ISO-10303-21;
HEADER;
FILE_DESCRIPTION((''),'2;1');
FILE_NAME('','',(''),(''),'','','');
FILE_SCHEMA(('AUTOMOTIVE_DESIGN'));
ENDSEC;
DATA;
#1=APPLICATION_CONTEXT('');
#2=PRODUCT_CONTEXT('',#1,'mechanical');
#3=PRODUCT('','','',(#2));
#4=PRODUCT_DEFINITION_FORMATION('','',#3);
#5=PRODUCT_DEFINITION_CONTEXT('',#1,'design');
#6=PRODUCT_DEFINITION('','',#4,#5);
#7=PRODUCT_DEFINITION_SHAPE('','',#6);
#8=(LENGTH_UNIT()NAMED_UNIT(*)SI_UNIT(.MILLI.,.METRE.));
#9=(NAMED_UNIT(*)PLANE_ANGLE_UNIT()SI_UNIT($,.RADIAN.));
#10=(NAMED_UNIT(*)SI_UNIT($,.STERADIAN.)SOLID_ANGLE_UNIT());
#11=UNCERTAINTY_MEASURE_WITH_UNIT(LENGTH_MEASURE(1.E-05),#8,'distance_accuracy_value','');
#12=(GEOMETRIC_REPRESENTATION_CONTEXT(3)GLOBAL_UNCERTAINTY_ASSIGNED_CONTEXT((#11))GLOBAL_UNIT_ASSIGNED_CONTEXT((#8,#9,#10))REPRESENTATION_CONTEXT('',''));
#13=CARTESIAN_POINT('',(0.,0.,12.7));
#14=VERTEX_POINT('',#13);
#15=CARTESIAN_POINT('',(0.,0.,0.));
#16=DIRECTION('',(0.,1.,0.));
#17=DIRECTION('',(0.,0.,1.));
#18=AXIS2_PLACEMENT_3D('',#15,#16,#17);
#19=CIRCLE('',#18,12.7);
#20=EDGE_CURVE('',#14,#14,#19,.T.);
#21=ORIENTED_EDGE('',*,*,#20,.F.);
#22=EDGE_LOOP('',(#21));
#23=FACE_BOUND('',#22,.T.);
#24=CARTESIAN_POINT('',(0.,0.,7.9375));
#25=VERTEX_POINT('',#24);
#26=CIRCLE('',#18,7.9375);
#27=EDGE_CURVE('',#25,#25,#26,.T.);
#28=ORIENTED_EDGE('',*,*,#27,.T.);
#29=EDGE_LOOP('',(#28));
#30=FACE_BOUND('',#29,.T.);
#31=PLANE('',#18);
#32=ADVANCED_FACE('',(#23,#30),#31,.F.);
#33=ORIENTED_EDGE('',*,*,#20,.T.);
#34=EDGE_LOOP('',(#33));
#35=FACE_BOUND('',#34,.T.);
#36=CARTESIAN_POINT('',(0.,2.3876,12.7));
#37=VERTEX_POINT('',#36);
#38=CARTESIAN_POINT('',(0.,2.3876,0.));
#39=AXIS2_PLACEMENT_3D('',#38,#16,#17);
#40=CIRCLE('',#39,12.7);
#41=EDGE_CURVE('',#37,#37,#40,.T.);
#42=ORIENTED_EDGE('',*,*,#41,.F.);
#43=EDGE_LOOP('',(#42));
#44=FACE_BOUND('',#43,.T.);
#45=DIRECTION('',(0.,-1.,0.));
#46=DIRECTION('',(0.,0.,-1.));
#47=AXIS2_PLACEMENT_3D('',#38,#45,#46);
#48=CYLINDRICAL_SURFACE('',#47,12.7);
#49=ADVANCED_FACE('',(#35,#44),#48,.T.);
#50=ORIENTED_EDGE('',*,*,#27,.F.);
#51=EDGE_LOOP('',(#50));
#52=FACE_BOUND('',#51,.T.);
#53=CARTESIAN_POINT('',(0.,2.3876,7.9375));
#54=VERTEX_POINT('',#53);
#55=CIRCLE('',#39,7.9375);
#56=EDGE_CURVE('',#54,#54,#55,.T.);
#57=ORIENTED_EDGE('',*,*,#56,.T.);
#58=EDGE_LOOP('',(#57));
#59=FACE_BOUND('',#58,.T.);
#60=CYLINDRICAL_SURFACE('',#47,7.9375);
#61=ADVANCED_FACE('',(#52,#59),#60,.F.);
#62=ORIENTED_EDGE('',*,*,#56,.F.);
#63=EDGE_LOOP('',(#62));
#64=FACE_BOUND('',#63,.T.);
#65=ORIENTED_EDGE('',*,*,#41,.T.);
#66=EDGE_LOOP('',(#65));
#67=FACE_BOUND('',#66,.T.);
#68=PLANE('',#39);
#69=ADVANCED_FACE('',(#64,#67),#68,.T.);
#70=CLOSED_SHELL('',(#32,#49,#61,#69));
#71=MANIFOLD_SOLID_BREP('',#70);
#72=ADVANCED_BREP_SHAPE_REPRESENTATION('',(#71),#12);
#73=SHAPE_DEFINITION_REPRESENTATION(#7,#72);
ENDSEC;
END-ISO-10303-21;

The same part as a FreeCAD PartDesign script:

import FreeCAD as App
import Part
import Sketcher

V = App.Vector
Q = App.Units.Quantity

doc = App.newDocument("Part")
body = doc.addObject("PartDesign::Body", "Body")

sketch1 = body.newObject("Sketcher::SketchObject", "Sketch")
sketch1.AttachmentSupport = (doc.getObject("XZ_Plane"), [""])
sketch1.MapMode = "FlatFace"
sketch1.addGeometry([
    Part.Circle(V(0, 0, 0), V(0, 0, 1), 13),
    Part.Circle(V(0, 0, 0), V(0, 0, 1), 8),
], False)
sketch1.addConstraint([
    Sketcher.Constraint("Coincident", 0, 3, -1, 1),
    Sketcher.Constraint("Coincident", 1, 3, -1, 1),
    Sketcher.Constraint("Diameter", 0, Q("1 in")),
    Sketcher.Constraint("Diameter", 1, Q("0.625 in")),
])
pad1 = body.newObject("PartDesign::Pad", "Pad")
pad1.Profile = sketch1
pad1.Length = Q("0.094 in")
pad1.Reversed = True

doc.recompute()
